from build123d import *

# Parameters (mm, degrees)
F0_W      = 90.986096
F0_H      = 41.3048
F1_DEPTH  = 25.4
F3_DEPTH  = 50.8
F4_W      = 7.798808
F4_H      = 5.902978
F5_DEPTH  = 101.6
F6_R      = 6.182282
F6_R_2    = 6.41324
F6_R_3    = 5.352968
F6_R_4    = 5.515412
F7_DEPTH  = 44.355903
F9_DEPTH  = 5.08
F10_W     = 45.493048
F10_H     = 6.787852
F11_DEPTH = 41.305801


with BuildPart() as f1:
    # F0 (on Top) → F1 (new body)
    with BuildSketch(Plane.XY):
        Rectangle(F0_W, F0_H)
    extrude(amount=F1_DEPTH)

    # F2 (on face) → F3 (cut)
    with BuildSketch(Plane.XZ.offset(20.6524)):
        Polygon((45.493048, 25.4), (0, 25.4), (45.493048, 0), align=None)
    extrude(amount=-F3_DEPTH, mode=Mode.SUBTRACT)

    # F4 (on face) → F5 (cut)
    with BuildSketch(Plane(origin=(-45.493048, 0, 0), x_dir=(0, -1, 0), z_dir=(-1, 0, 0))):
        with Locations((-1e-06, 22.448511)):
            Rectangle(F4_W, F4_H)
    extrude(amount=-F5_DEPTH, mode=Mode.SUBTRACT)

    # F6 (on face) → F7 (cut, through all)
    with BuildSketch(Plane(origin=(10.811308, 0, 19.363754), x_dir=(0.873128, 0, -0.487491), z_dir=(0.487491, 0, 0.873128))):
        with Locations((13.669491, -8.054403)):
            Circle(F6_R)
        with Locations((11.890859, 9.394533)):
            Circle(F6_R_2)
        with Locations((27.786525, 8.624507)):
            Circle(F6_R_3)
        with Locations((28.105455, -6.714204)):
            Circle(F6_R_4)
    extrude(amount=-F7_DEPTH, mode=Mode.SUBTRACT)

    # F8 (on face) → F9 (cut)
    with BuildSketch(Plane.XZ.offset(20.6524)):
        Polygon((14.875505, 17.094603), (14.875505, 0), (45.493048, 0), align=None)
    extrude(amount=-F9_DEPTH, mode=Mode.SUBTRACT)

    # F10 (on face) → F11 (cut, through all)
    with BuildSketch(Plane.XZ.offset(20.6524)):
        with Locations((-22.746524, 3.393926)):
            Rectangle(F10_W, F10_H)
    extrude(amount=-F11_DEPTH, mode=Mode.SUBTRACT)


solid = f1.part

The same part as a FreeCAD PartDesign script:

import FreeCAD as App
import Part
import Sketcher
from FreeCAD import Vector
Q = App.Units.Quantity


def add_polygon(sketch, points):
    """Adds a closed chain of lines whose ends are joined by coincident constraints."""
    first, n = sketch.GeometryCount, len(points)
    for a, b in zip(points, points[1:] + points[:1]):
        sketch.addGeometry(Part.LineSegment(App.Vector(*a, 0), App.Vector(*b, 0)), False)
    for i in range(n):
        sketch.addConstraint(Sketcher.Constraint("Coincident", first + i, 2, first + (i + 1) % n, 1))

doc = App.newDocument("Part")
params = doc.addObject("Spreadsheet::Sheet", "Params")
for row, (alias, value) in enumerate([
    ("pad1_length", "1 in"),
    ("sketch2_height", "1 in"),
    ("pocket1_length", "2 in"),
    ("pocket2_length", "4 in"),
    ("pocket4_length", "0.2 in"),
], start=1):
    params.set(f"A{row}", alias)
    params.set(f"B{row}", "=" + value)
    params.setAlias(f"B{row}", alias)

body = doc.addObject("PartDesign::Body", "Body")

sketch1 = body.newObject("Sketcher::SketchObject", "Sketch")
sketch1.AttachmentSupport = (doc.getObject("XY_Plane"), [""])
sketch1.MapMode = "FlatFace"
add_polygon(sketch1, [(-45, 21), (-45, -21), (45, -21), (45, 21)])
sketch1.addConstraint(Sketcher.Constraint("Vertical", 0))
sketch1.addConstraint(Sketcher.Constraint("Horizontal", 1))
sketch1.addConstraint(Sketcher.Constraint("Vertical", 2))
sketch1.addConstraint(Sketcher.Constraint("Horizontal", 3))
sketch1.addConstraint(Sketcher.Constraint("Symmetric", 0, 2, 2, 2, -1, 1))
sketch1.addConstraint(Sketcher.Constraint("DistanceY", 0, 2, 0, 1, 41.3048))
sketch1.addConstraint(Sketcher.Constraint("DistanceX", 1, 1, 1, 2, 90.986096))
pad1 = body.newObject("PartDesign::Pad", "Pad")
pad1.Profile = sketch1
pad1.setExpression("Length", "Params.pad1_length")

sketch2 = body.newObject("Sketcher::SketchObject", "Sketch001")
sketch2.AttachmentSupport = (doc.getObject("XZ_Plane"), [""])
sketch2.MapMode = "FlatFace"
sketch2.AttachmentOffset = App.Placement(Vector(0, 0, 20.6524), App.Rotation())
add_polygon(sketch2, [(45, 25), (0, 25), (45, 0)])
sketch2.addConstraint(Sketcher.Constraint("Horizontal", 0))
sketch2.addConstraint(Sketcher.Constraint("Vertical", 2))
sketch2.addConstraint(Sketcher.Constraint("PointOnObject", 0, 2, -2))
sketch2.addConstraint(Sketcher.Constraint("PointOnObject", 1, 2, -1))
sketch2.addConstraint(Sketcher.Constraint("DistanceY", 2, 1, 2, 2, Q("1 in")))
sketch2.addConstraint(Sketcher.Constraint("DistanceX", 0, 2, 0, 1, 45.493048))
sketch2.setExpression("Constraints[7]", "Params.sketch2_height")
pocket1 = body.newObject("PartDesign::Pocket", "Pocket")
pocket1.Profile = sketch2
pocket1.setExpression("Length", "Params.pocket1_length")

sketch3 = body.newObject("Sketcher::SketchObject", "Sketch002")
sketch3.AttachmentSupport = (doc.getObject("YZ_Plane"), [""])
sketch3.MapMode = "FlatFace"
sketch3.AttachmentOffset = App.Placement(Vector(0, 0, -45.493048), App.Rotation())
add_polygon(sketch3, [(4, 25), (4, 19), (-4, 19), (-4, 25)])
sketch3.addConstraint(Sketcher.Constraint("Vertical", 0))
sketch3.addConstraint(Sketcher.Constraint("Horizontal", 1))
sketch3.addConstraint(Sketcher.Constraint("Vertical", 2))
sketch3.addConstraint(Sketcher.Constraint("Horizontal", 3))
sketch3.addConstraint(Sketcher.Constraint("DistanceY", -1, 1, 2, 2, Q("1 in")))
sketch3.addConstraint(Sketcher.Constraint("DistanceX", 1, 2, 1, 1, 7.798808))
sketch3.addConstraint(Sketcher.Constraint("DistanceY", 0, 2, 0, 1, 5.902978))
sketch3.addConstraint(Sketcher.Constraint("DistanceX", -1, 1, 0, 2, 3.899405))
pocket2 = body.newObject("PartDesign::Pocket", "Pocket001")
pocket2.Profile = sketch3
pocket2.setExpression("Length", "Params.pocket2_length")
pocket2.Reversed = True

sketch4 = body.newObject("Sketcher::SketchObject", "Sketch003")
sketch4.Placement = App.Placement(Vector(10.811308, 0, 19.363754), App.Rotation(Vector(0.873128009, 0, -0.487491005), Vector(0, 1, 0), Vector(0.487491005, 0, 0.873128009), "ZXY"))
sketch4.addGeometry(Part.Circle(Vector(14, -8, 0), Vector(0, 0, 1), 6), False)
sketch4.addGeometry(Part.Circle(Vector(12, 9, 0), Vector(0, 0, 1), 6), False)
sketch4.addGeometry(Part.Circle(Vector(28, 9, 0), Vector(0, 0, 1), 5), False)
sketch4.addGeometry(Part.Circle(Vector(28, -7, 0), Vector(0, 0, 1), 6), False)
sketch4.addConstraint(Sketcher.Constraint("Diameter", 1, 12.82648))
sketch4.addConstraint(Sketcher.Constraint("Diameter", 0, 12.364564))
sketch4.addConstraint(Sketcher.Constraint("Diameter", 2, 10.705936))
sketch4.addConstraint(Sketcher.Constraint("Diameter", 3, 11.030824))
sketch4.addConstraint(Sketcher.Constraint("DistanceY", 0, 3, 3, 3, 1.340199))
sketch4.addConstraint(Sketcher.Constraint("DistanceX", -1, 1, 0, 3, 13.669491))
sketch4.addConstraint(Sketcher.Constraint("DistanceX", -1, 1, 1, 3, 11.890859))
sketch4.addConstraint(Sketcher.Constraint("DistanceY", 0, 3, 2, 3, 16.67891))
sketch4.addConstraint(Sketcher.Constraint("DistanceX", 2, 3, 3, 3, 0.31893))
sketch4.addConstraint(Sketcher.Constraint("DistanceY", 0, 3, -1, 1, 8.054403))
sketch4.addConstraint(Sketcher.Constraint("DistanceY", -1, 1, 1, 3, 9.394533))
sketch4.addConstraint(Sketcher.Constraint("DistanceX", -1, 1, 2, 3, 27.786525))
pocket3 = body.newObject("PartDesign::Pocket", "Pocket002")
pocket3.Profile = sketch4
pocket3.Type = "ThroughAll"

sketch5 = body.newObject("Sketcher::SketchObject", "Sketch004")
sketch5.AttachmentSupport = (doc.getObject("XZ_Plane"), [""])
sketch5.MapMode = "FlatFace"
sketch5.AttachmentOffset = App.Placement(Vector(0, 0, 20.6524), App.Rotation())
add_polygon(sketch5, [(15, 17), (15, 0), (45, 0)])
sketch5.addConstraint(Sketcher.Constraint("Vertical", 0))
sketch5.addConstraint(Sketcher.Constraint("Horizontal", 1))
sketch5.addConstraint(Sketcher.Constraint("PointOnObject", 0, 2, -1))
sketch5.addConstraint(Sketcher.Constraint("Distance", 2, 35.0665))
sketch5.addConstraint(Sketcher.Constraint("DistanceX", 1, 1, 1, 2, 30.617543))
sketch5.addConstraint(Sketcher.Constraint("DistanceX", -1, 1, 1, 2, 45.493048))
pocket4 = body.newObject("PartDesign::Pocket", "Pocket003")
pocket4.Profile = sketch5
pocket4.setExpression("Length", "Params.pocket4_length")

sketch6 = body.newObject("Sketcher::SketchObject", "Sketch005")
sketch6.AttachmentSupport = (doc.getObject("XZ_Plane"), [""])
sketch6.MapMode = "FlatFace"
sketch6.AttachmentOffset = App.Placement(Vector(0, 0, 20.6524), App.Rotation())
add_polygon(sketch6, [(-45, 7), (-45, 0), (0, 0), (0, 7)])
sketch6.addConstraint(Sketcher.Constraint("Vertical", 0))
sketch6.addConstraint(Sketcher.Constraint("Horizontal", 1))
sketch6.addConstraint(Sketcher.Constraint("Vertical", 2))
sketch6.addConstraint(Sketcher.Constraint("Horizontal", 3))
sketch6.addConstraint(Sketcher.Constraint("Coincident", 1, 2, -1, 1))
sketch6.addConstraint(Sketcher.Constraint("DistanceX", 1, 1, 1, 2, 45.493048))
sketch6.addConstraint(Sketcher.Constraint("DistanceY", 0, 2, 0, 1, 6.787852))
pocket5 = body.newObject("PartDesign::Pocket", "Pocket004")
pocket5.Profile = sketch6
pocket5.Type = "ThroughAll"

doc.recompute()
